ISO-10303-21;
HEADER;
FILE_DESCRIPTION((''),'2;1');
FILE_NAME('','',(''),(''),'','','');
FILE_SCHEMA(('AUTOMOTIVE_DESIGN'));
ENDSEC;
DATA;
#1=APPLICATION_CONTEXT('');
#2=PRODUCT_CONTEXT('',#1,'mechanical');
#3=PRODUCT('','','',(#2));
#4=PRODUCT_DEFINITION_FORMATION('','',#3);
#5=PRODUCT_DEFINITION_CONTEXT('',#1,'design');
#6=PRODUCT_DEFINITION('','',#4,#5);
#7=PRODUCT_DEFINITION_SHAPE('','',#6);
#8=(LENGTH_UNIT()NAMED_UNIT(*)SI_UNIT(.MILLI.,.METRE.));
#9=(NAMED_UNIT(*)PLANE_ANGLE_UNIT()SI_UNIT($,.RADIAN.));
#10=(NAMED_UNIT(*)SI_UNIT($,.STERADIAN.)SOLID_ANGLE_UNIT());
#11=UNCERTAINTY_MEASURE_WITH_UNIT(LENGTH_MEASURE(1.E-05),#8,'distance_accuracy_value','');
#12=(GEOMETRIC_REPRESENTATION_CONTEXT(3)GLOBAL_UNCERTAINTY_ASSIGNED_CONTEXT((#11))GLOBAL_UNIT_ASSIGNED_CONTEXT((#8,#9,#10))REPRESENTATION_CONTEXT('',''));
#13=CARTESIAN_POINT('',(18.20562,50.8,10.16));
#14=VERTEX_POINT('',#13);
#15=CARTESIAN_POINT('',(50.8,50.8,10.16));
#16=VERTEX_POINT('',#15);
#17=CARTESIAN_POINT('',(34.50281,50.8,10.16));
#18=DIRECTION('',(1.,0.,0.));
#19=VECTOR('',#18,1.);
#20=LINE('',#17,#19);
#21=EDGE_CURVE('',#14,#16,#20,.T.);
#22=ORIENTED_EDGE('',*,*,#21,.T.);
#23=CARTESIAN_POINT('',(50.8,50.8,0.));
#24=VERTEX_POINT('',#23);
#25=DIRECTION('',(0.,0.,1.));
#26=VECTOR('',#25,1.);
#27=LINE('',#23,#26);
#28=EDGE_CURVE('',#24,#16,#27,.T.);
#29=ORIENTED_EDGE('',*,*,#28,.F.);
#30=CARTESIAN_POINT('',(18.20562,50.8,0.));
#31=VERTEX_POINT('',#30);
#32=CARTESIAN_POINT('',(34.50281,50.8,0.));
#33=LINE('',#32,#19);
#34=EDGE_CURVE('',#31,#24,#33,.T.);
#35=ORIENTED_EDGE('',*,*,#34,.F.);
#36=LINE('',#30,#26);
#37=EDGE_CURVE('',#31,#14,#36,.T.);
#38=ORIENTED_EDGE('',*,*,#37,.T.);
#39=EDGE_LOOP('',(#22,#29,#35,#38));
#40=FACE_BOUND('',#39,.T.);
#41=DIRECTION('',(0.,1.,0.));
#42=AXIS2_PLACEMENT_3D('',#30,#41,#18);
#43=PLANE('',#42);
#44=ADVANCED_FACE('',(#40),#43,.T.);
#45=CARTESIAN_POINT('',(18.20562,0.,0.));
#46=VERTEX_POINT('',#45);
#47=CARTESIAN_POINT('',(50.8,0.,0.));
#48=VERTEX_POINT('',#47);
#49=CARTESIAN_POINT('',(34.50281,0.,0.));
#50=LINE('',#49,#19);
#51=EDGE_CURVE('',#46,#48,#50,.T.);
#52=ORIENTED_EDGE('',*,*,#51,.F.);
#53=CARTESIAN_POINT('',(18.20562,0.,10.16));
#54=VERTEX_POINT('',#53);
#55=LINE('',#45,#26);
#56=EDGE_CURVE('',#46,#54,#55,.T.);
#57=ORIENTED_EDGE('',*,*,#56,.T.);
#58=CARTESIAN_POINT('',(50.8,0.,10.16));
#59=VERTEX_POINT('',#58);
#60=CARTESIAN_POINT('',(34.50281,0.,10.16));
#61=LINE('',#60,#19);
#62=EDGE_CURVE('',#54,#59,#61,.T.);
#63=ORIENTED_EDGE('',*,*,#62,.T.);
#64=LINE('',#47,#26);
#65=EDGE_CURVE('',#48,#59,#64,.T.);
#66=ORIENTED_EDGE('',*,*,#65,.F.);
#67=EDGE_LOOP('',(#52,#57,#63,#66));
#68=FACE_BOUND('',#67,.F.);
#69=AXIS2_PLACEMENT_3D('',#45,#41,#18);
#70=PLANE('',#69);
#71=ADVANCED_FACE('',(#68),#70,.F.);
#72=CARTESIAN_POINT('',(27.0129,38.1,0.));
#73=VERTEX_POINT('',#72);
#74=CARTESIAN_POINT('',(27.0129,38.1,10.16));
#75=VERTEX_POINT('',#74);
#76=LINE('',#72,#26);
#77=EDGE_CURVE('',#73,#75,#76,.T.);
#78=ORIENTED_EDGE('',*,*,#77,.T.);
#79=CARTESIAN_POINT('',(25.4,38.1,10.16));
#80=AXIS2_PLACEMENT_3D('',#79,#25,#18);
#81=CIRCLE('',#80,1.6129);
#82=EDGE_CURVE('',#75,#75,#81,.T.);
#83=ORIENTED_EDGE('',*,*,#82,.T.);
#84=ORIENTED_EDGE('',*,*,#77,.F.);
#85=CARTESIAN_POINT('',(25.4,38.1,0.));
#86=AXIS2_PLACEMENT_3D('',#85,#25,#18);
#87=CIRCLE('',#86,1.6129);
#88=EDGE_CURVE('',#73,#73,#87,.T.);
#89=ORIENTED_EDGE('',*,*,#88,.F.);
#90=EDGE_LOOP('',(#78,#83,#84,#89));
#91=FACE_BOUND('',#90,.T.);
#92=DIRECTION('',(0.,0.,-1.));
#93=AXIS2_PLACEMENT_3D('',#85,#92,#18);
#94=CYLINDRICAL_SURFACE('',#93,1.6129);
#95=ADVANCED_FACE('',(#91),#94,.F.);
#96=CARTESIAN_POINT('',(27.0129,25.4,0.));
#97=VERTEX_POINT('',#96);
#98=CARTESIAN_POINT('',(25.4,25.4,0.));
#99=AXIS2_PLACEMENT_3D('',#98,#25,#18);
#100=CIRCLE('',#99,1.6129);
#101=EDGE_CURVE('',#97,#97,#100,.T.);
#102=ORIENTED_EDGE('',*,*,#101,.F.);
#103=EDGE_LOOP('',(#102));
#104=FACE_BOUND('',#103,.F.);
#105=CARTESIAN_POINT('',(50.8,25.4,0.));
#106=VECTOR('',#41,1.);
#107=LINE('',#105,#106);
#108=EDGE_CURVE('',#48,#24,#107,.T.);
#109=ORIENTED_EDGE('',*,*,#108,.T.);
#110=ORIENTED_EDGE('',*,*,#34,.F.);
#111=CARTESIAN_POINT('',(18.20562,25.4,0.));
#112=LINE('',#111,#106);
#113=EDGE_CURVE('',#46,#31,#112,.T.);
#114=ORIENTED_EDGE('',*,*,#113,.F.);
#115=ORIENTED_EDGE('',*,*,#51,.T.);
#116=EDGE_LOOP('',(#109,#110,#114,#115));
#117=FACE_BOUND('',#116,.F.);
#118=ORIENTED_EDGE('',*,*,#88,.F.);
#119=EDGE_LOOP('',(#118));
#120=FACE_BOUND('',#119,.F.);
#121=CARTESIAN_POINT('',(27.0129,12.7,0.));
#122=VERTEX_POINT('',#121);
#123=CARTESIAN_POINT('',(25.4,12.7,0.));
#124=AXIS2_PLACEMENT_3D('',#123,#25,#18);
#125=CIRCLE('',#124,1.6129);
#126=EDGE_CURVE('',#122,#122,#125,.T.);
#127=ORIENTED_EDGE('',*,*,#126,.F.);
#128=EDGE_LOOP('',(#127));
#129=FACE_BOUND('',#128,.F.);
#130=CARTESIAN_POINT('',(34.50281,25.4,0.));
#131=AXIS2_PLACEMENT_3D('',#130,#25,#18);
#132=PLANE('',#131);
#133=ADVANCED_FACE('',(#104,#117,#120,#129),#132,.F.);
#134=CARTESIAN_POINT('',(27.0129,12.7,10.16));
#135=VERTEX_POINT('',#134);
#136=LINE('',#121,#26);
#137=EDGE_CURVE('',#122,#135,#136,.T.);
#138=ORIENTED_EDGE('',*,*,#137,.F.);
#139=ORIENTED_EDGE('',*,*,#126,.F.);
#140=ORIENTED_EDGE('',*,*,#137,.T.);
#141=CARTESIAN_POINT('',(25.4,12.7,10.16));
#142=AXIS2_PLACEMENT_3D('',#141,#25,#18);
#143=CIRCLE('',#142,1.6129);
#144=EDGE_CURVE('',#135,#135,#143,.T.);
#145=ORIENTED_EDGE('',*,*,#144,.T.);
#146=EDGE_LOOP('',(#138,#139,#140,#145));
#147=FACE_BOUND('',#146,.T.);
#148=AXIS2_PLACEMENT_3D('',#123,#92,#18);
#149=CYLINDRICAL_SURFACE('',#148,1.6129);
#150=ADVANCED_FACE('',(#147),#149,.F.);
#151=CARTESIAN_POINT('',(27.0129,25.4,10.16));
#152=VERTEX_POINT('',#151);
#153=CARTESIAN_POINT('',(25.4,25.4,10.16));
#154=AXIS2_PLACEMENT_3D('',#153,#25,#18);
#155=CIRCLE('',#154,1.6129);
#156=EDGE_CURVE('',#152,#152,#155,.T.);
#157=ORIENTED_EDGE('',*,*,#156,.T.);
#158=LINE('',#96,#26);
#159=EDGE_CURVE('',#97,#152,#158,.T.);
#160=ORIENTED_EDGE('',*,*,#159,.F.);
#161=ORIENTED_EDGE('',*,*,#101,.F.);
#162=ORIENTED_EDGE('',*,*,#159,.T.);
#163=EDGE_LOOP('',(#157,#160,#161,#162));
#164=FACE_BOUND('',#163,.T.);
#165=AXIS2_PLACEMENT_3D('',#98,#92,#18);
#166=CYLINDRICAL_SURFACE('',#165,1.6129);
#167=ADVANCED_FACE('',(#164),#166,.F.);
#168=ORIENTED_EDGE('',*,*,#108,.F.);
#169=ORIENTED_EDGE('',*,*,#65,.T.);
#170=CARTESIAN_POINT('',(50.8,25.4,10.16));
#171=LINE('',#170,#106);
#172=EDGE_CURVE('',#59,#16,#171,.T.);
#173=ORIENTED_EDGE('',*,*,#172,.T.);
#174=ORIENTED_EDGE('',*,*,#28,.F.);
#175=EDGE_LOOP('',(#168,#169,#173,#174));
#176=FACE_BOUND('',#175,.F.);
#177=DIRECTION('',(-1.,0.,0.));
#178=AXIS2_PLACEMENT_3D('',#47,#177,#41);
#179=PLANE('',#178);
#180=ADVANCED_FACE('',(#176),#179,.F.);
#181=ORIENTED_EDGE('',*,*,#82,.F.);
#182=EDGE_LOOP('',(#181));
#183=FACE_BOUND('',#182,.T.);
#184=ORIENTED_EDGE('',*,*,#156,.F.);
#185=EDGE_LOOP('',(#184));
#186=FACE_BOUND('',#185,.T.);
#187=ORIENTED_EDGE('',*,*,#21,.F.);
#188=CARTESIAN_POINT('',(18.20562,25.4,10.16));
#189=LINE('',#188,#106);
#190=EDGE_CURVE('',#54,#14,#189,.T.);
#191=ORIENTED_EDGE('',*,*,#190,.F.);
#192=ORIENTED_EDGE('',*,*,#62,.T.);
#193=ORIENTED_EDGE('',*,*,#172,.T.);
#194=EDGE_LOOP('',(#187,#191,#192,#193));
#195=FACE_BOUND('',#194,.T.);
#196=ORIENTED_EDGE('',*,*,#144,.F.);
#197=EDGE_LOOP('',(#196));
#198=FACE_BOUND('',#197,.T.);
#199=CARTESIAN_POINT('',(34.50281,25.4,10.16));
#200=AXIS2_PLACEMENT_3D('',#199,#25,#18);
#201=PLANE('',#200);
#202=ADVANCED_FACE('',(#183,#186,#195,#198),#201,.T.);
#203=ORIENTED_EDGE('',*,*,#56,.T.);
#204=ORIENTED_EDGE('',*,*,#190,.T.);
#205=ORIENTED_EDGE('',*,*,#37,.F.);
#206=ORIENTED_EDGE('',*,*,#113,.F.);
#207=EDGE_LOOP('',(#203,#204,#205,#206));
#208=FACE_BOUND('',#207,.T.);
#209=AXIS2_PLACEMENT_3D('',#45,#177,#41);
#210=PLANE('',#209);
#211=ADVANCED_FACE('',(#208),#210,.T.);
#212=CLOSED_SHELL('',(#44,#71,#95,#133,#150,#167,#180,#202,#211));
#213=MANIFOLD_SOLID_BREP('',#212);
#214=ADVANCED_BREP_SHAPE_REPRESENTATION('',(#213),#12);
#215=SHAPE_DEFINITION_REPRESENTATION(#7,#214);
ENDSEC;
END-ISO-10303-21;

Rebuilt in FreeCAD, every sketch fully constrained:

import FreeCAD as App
import Part
import Sketcher
from FreeCAD import Vector
Q = App.Units.Quantity


def add_polygon(sketch, points):
    """Adds a closed chain of lines whose ends are joined by coincident constraints."""
    first, n = sketch.GeometryCount, len(points)
    for a, b in zip(points, points[1:] + points[:1]):
        sketch.addGeometry(Part.LineSegment(App.Vector(*a, 0), App.Vector(*b, 0)), False)
    for i in range(n):
        sketch.addConstraint(Sketcher.Constraint("Coincident", first + i, 2, first + (i + 1) % n, 1))

doc = App.newDocument("Part")
body = doc.addObject("PartDesign::Body", "Body")

# Sketch on XY plane
sketch1 = doc.addObject("Sketcher::SketchObject", "Sketch")
body.addObject(sketch1)
sketch1.AttachmentSupport = (doc.XY_Plane, [""])
sketch1.MapMode = "FlatFace"
add_polygon(sketch1, [(18.2, 50.8), (18.2, 0), (50.8, 0), (50.8, 50.8)])  # lines 0-3
sketch1.addGeometry(Part.Circle(Vector(25.4, 12.7, 0), Vector(0, 0, 1), 1.6), False)  # 4
sketch1.addGeometry(Part.Circle(Vector(25.4, 25.4, 0), Vector(0, 0, 1), 1.6), False)  # 5
sketch1.addGeometry(Part.Circle(Vector(25.4, 38.1, 0), Vector(0, 0, 1), 1.6), False)  # 6
sketch1.addConstraint(Sketcher.Constraint("Vertical", 0))
sketch1.addConstraint(Sketcher.Constraint("Horizontal", 1))
sketch1.addConstraint(Sketcher.Constraint("Vertical", 2))
sketch1.addConstraint(Sketcher.Constraint("Horizontal", 3))
sketch1.addConstraint(Sketcher.Constraint("Equal", 4, 5))
sketch1.addConstraint(Sketcher.Constraint("Equal", 5, 6))
sketch1.addConstraint(Sketcher.Constraint("PointOnObject", 0, 2, -1))
sketch1.addConstraint(Sketcher.Constraint("Vertical", 4, 3, 5, 3))
sketch1.addConstraint(Sketcher.Constraint("Vertical", 5, 3, 6, 3))
sketch1.addConstraint(Sketcher.Constraint("DistanceY", 0, 2, 0, 1, Q("2 in")))
sketch1.addConstraint(Sketcher.Constraint("Diameter", 4, Q("0.127 in")))
sketch1.addConstraint(Sketcher.Constraint("DistanceX", -1, 1, 4, 3, Q("1 in")))
sketch1.addConstraint(Sketcher.Constraint("DistanceY", -1, 1, 5, 3, Q("1 in")))
sketch1.addConstraint(Sketcher.Constraint("DistanceX", -1, 1, 1, 2, Q("2 in")))
sketch1.addConstraint(Sketcher.Constraint("DistanceY", 4, 3, 6, 3, Q("1 in")))
sketch1.addConstraint(Sketcher.Constraint("DistanceY", -1, 1, 4, 3, Q("0.5 in")))
sketch1.addConstraint(Sketcher.Constraint("DistanceX", 1, 1, 1, 2, 32.59438))
pad1 = doc.addObject("PartDesign::Pad", "Pad")
body.addObject(pad1)
pad1.Profile = sketch1
pad1.Length = Q("0.4 in")

doc.recompute()
